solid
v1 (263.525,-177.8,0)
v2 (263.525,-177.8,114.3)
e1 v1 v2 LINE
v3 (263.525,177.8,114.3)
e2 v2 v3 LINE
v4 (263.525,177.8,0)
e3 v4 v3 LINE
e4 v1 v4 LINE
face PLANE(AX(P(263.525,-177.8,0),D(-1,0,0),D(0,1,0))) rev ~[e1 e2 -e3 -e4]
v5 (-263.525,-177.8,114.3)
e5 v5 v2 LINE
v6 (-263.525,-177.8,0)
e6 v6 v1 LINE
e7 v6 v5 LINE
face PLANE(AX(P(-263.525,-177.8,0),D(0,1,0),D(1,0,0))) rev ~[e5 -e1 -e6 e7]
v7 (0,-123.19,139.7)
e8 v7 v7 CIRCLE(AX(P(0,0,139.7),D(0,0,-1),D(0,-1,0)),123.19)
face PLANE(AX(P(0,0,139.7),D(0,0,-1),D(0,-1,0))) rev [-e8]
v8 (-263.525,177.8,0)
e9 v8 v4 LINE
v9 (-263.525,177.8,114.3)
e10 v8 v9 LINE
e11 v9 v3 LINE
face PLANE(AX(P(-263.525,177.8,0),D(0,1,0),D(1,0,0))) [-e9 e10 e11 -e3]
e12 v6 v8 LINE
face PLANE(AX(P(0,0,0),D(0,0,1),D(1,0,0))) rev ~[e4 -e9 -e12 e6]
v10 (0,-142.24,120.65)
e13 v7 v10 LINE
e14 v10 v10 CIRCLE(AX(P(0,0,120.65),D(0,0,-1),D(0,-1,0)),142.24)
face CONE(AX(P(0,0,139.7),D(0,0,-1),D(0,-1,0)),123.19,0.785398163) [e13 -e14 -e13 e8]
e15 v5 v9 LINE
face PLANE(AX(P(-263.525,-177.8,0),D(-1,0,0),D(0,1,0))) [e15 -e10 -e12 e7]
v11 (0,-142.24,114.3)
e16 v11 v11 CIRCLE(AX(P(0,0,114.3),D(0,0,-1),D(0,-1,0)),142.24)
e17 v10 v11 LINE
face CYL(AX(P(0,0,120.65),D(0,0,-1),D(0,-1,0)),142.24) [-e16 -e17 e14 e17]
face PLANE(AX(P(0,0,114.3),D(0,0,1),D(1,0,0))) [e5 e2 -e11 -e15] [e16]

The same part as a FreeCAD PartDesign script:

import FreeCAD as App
import Part
import Sketcher
from FreeCAD import Vector
Q = App.Units.Quantity

doc = App.newDocument("Part")
body = doc.addObject("PartDesign::Body", "Body")

sketch1 = body.newObject("Sketcher::SketchObject", "Sketch")
sketch1.AttachmentSupport = (doc.getObject("XY_Plane"), [""])
sketch1.MapMode = "FlatFace"
sketch1.addGeometry(Part.LineSegment(Vector(-264, 178, 0), Vector(-264, -178, 0)), False)
sketch1.addGeometry(Part.LineSegment(Vector(-264, -178, 0), Vector(264, -178, 0)), False)
sketch1.addGeometry(Part.LineSegment(Vector(264, -178, 0), Vector(264, 178, 0)), False)
sketch1.addGeometry(Part.LineSegment(Vector(264, 178, 0), Vector(-264, 178, 0)), False)
sketch1.addConstraint(Sketcher.Constraint("Coincident", 0, 2, 1, 1))
sketch1.addConstraint(Sketcher.Constraint("Coincident", 1, 2, 2, 1))
sketch1.addConstraint(Sketcher.Constraint("Coincident", 2, 2, 3, 1))
sketch1.addConstraint(Sketcher.Constraint("Coincident", 3, 2, 0, 1))
sketch1.addConstraint(Sketcher.Constraint("Vertical", 0))
sketch1.addConstraint(Sketcher.Constraint("Horizontal", 1))
sketch1.addConstraint(Sketcher.Constraint("Vertical", 2))
sketch1.addConstraint(Sketcher.Constraint("Horizontal", 3))
sketch1.addConstraint(Sketcher.Constraint("Symmetric", 0, 2, 2, 2, -1, 1))
sketch1.addConstraint(Sketcher.Constraint("DistanceY", 0, 2, 0, 1, Q("14 in")))
sketch1.addConstraint(Sketcher.Constraint("DistanceX", 1, 1, 1, 2, Q("20.75 in")))
pad1 = body.newObject("PartDesign::Pad", "Pad")
pad1.Profile = sketch1
pad1.Length = Q("4.5 in")

sketch2 = body.newObject("Sketcher::SketchObject", "Sketch001")
sketch2.AttachmentSupport = (doc.getObject("YZ_Plane"), [""])
sketch2.MapMode = "FlatFace"
sketch2.addGeometry(Part.LineSegment(Vector(-142, 121, 0), Vector(-142, 114, 0)), False)
sketch2.addGeometry(Part.LineSegment(Vector(-142, 114, 0), Vector(0, 114, 0)), False)
sketch2.addGeometry(Part.LineSegment(Vector(0, 114, 0), Vector(0, 140, 0)), False)
sketch2.addGeometry(Part.LineSegment(Vector(0, 140, 0), Vector(-123, 140, 0)), False)
sketch2.addGeometry(Part.LineSegment(Vector(-123, 140, 0), Vector(-142, 121, 0)), False)
sketch2.addConstraint(Sketcher.Constraint("Coincident", 0, 2, 1, 1))
sketch2.addConstraint(Sketcher.Constraint("Coincident", 1, 2, 2, 1))
sketch2.addConstraint(Sketcher.Constraint("Coincident", 2, 2, 3, 1))
sketch2.addConstraint(Sketcher.Constraint("Coincident", 3, 2, 4, 1))
sketch2.addConstraint(Sketcher.Constraint("Coincident", 4, 2, 0, 1))
sketch2.addConstraint(Sketcher.Constraint("Vertical", 0))
sketch2.addConstraint(Sketcher.Constraint("Horizontal", 1))
sketch2.addConstraint(Sketcher.Constraint("Vertical", 2))
sketch2.addConstraint(Sketcher.Constraint("Horizontal", 3))
sketch2.addConstraint(Sketcher.Constraint("PointOnObject", 1, 2, -2))
sketch2.addConstraint(Sketcher.Constraint("DistanceY", 2, 1, 2, 2, Q("1 in")))
sketch2.addConstraint(Sketcher.Constraint("DistanceX", 1, 1, 1, 2, Q("5.6 in")))
sketch2.addConstraint(Sketcher.Constraint("Angle", 4, Q("-135 deg")))
sketch2.addConstraint(Sketcher.Constraint("DistanceX", 3, 2, 3, 1, Q("4.85 in")))
sketch2.addConstraint(Sketcher.Constraint("DistanceY", -1, 1, 0, 2, Q("4.5 in")))
revolution = body.newObject("PartDesign::Revolution", "Revolution")
revolution.Profile = sketch2
revolution.ReferenceAxis = (sketch2, ["V_Axis"])
revolution.Angle = 360

doc.recompute()
